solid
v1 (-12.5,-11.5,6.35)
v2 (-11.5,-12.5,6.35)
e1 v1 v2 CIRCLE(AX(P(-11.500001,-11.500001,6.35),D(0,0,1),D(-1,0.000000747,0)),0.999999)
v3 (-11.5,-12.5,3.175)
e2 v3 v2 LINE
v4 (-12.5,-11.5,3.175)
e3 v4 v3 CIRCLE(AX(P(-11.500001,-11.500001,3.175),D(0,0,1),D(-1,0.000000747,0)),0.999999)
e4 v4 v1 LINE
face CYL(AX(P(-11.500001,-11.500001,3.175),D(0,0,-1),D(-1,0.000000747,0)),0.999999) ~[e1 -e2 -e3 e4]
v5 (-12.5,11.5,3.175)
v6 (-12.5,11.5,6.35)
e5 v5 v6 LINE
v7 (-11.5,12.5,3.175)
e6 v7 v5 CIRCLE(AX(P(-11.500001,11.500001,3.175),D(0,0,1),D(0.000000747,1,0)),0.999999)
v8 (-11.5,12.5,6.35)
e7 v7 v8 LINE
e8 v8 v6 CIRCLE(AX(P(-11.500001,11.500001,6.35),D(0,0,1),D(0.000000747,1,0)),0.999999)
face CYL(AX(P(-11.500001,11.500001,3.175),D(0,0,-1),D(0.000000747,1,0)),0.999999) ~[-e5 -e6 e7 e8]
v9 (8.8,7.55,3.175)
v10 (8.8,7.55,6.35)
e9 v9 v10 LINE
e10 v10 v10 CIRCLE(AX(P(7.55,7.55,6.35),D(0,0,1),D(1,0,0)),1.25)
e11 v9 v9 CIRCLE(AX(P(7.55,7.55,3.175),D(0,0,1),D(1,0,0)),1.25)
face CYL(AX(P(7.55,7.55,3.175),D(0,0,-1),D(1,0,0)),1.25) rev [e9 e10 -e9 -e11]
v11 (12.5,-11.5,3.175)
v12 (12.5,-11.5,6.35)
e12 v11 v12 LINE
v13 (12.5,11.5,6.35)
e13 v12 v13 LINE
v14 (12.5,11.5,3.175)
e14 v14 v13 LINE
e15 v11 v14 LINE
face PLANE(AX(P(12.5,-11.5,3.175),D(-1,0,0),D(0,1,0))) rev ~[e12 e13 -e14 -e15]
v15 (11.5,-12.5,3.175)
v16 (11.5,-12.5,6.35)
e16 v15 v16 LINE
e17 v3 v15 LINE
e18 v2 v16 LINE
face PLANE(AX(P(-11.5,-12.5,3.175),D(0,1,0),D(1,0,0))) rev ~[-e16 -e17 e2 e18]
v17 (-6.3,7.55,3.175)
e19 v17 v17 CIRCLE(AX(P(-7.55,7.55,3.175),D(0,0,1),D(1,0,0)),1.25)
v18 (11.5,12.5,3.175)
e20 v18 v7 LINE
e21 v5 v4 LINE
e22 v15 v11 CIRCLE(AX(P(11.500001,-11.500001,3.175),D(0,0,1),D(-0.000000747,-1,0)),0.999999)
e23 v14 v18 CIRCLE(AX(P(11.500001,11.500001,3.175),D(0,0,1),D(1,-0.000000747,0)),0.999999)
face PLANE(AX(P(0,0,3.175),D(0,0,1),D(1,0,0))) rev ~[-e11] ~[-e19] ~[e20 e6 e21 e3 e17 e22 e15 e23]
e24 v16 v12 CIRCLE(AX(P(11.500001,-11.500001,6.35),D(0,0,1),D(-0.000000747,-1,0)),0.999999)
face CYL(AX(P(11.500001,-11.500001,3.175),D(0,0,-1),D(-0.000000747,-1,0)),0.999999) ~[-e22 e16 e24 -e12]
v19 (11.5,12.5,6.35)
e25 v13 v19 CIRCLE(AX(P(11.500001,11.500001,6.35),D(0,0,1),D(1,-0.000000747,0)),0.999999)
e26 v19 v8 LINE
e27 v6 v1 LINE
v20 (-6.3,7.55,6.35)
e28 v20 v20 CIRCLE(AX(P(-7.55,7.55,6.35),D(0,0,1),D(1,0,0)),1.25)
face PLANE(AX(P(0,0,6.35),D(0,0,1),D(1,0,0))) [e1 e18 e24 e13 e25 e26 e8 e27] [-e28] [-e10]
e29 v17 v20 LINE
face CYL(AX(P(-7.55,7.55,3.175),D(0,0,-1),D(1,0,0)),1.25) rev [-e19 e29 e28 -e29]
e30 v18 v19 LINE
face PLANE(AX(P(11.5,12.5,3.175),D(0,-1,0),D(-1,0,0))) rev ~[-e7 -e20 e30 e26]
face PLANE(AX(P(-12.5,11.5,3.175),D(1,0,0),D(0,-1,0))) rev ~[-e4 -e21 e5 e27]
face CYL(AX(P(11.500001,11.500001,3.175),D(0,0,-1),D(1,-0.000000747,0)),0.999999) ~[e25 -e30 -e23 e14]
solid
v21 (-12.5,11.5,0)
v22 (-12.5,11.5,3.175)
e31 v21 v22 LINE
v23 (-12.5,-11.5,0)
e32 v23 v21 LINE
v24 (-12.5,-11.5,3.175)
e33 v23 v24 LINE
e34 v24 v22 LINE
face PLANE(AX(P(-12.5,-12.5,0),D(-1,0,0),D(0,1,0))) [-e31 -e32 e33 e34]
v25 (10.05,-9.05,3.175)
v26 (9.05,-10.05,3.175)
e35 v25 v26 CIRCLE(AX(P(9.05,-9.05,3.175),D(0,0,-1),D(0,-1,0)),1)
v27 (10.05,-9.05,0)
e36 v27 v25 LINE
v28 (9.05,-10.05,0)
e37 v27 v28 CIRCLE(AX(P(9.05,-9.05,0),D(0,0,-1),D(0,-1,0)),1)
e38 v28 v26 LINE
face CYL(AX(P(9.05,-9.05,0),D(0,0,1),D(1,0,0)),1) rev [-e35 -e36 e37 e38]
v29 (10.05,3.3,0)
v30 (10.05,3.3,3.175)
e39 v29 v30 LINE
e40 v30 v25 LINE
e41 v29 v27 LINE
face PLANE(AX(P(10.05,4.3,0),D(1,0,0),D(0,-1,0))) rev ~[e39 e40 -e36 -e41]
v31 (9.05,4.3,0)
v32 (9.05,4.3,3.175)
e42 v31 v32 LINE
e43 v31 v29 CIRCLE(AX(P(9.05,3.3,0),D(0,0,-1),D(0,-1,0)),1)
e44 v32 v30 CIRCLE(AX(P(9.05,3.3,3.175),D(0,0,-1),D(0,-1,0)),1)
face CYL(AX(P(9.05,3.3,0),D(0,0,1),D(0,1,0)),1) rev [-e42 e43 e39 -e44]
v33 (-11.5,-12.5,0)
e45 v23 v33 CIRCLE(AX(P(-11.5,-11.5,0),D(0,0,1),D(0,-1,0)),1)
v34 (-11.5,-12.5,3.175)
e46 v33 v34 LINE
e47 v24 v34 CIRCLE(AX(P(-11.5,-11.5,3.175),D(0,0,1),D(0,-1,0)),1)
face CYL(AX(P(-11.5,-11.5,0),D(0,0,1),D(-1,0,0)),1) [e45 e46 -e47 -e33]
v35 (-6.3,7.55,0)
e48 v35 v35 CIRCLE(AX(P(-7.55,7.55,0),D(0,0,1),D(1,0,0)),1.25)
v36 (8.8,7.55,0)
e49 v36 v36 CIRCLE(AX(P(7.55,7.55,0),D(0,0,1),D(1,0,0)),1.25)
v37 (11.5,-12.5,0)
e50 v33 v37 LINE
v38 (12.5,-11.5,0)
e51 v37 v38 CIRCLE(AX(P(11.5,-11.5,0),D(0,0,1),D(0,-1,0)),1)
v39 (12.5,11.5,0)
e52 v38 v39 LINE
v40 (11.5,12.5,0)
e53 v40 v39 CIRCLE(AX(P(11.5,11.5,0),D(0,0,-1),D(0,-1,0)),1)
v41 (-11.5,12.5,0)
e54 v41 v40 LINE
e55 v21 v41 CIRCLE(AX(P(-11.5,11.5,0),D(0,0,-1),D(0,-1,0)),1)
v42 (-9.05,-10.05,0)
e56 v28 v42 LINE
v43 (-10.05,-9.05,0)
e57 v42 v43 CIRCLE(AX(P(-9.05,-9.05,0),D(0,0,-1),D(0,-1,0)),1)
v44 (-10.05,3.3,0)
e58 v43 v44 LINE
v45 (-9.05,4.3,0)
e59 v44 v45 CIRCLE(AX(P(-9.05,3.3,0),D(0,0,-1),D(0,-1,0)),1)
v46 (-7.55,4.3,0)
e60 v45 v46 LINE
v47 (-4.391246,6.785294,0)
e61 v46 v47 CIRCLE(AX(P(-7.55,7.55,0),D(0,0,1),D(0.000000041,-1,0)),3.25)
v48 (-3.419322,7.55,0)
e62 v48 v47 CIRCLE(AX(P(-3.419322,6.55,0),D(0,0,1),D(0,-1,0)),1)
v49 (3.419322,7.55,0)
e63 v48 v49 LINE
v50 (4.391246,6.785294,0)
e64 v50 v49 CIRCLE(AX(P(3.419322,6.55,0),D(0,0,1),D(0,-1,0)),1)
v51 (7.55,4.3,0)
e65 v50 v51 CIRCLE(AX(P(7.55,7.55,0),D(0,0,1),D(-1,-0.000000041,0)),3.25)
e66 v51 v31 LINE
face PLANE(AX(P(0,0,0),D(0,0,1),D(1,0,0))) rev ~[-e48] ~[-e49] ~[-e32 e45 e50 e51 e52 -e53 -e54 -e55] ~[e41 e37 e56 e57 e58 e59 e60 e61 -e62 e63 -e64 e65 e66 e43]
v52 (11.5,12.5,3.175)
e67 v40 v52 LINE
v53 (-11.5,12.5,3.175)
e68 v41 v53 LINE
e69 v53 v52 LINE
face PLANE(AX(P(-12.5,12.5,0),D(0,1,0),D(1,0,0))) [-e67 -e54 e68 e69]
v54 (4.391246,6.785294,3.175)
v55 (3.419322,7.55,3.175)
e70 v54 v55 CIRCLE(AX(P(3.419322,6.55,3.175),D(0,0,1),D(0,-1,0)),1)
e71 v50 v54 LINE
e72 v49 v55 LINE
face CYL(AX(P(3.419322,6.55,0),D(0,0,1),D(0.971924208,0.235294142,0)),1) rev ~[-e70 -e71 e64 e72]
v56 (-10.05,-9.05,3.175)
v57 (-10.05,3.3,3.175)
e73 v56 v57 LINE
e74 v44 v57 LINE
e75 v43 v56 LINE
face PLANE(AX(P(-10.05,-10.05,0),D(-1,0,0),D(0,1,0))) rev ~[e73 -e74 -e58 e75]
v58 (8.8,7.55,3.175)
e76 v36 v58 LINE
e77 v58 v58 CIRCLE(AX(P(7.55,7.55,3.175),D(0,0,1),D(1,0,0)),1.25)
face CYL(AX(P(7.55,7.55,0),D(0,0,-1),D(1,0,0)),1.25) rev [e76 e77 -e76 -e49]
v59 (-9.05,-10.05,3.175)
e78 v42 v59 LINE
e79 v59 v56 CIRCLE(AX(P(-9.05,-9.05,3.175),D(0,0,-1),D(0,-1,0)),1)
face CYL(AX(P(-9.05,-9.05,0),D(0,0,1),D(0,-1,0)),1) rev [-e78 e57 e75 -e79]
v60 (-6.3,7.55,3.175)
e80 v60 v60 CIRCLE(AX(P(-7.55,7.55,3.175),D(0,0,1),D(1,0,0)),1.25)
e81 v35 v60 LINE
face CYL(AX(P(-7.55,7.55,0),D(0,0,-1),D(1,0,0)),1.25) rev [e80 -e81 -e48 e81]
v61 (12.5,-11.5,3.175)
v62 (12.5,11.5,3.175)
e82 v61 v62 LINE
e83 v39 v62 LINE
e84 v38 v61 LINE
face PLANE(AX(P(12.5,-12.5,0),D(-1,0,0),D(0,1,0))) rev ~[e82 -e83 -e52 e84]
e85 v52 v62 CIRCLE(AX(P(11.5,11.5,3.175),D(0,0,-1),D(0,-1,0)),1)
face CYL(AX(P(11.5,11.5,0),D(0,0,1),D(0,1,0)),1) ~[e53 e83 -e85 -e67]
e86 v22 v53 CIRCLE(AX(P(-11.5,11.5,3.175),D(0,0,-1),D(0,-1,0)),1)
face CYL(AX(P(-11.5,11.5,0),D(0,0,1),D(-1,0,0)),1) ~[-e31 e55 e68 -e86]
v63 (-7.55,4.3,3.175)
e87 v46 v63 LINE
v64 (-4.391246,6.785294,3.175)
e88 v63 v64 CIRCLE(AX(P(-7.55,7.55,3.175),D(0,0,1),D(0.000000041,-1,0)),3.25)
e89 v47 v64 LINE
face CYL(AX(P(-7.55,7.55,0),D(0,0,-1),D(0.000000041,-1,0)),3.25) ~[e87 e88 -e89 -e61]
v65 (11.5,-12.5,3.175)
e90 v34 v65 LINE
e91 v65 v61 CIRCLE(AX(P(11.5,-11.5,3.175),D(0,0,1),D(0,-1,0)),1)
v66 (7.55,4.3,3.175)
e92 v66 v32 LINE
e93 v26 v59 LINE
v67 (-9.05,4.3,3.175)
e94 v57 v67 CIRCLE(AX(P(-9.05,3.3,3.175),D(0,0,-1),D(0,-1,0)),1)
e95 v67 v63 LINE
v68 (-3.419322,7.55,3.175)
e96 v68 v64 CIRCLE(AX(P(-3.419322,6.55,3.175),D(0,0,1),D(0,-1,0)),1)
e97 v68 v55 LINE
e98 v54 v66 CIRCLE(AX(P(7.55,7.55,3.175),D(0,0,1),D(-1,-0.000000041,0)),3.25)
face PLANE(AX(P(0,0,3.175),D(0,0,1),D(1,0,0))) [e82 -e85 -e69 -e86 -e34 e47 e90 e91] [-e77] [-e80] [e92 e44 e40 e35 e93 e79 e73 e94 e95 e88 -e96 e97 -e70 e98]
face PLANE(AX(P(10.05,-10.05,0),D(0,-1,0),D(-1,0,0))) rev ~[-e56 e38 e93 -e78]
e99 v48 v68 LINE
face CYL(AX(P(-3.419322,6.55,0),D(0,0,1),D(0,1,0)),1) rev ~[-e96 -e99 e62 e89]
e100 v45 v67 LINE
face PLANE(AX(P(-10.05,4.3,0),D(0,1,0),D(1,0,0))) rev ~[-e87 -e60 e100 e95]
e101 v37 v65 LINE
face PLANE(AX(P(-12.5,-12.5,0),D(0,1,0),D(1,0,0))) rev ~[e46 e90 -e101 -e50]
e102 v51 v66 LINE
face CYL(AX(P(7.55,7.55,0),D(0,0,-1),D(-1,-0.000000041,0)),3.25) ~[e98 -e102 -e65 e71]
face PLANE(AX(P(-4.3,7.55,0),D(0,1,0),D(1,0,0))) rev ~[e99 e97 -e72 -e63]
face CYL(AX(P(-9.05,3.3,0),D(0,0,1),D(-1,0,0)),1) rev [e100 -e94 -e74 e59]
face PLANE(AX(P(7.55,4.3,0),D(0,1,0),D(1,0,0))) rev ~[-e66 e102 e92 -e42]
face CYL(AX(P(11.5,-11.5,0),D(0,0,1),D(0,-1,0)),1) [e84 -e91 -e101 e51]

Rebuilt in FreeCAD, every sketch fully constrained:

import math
import FreeCAD as App
import Part
import Sketcher

V = App.Vector
Q = App.Units.Quantity


def edges_at(feature, points):
    """Names of the edges that pass closest to the given points."""
    edges = feature.Shape.Edges
    near = lambda p: min(range(len(edges)), key=lambda i: edges[i].distToShape(Part.Vertex(*p))[0])
    return sorted({f"Edge{near(p) + 1}" for p in points})


def add_polygon(sketch, points):
    """Adds a closed chain of lines whose ends are joined by coincident constraints."""
    first, n = sketch.GeometryCount, len(points)
    for a, b in zip(points, points[1:] + points[:1]):
        sketch.addGeometry(Part.LineSegment(App.Vector(*a, 0), App.Vector(*b, 0)), False)
    for i in range(n):
        sketch.addConstraint(Sketcher.Constraint("Coincident", first + i, 2, first + (i + 1) % n, 1))

doc = App.newDocument("Part")
body = doc.addObject("PartDesign::Body", "Body")

# Sketch on XY plane
sketch1 = body.newObject("Sketcher::SketchObject", "Sketch")
sketch1.AttachmentSupport = (doc.getObject("XY_Plane"), [""])
sketch1.MapMode = "FlatFace"
add_polygon(sketch1, [(-12.5, 12.5), (-12.5, -12.5), (12.5, -12.5), (12.5, 12.5)])  # lines 0-3
sketch1.addGeometry(Part.LineSegment(V(7.5, 4.3, 0), V(10.1, 4.3, 0)), False)  # 4
sketch1.addGeometry(Part.LineSegment(V(10.1, 4.3, 0), V(10.1, -10.1, 0)), False)  # 5
sketch1.addGeometry(Part.LineSegment(V(10.1, -10.1, 0), V(-10.1, -10.1, 0)), False)  # 6
sketch1.addGeometry(Part.LineSegment(V(-10.1, -10.1, 0), V(-10.1, 4.3, 0)), False)  # 7
sketch1.addGeometry(Part.LineSegment(V(-10.1, 4.3, 0), V(-7.5, 4.3, 0)), False)  # 8
sketch1.addGeometry(Part.ArcOfCircle(Part.Circle(V(-7.6, 7.6, 0), V(0, 0, 1), 3.3), math.radians(-90), math.radians(0)), False)  # 9
sketch1.addGeometry(Part.LineSegment(V(-4.3, 7.5, 0), V(4.3, 7.5, 0)), False)  # 10
sketch1.addGeometry(Part.ArcOfCircle(Part.Circle(V(7.6, 7.6, 0), V(0, 0, 1), 3.3), math.radians(-180), math.radians(-90)), False)  # 11
sketch1.addGeometry(Part.Circle(V(-7.5, 7.5, 0), V(0, 0, 1), 1.2), False)  # 12
sketch1.addGeometry(Part.Circle(V(7.5, 7.5, 0), V(0, 0, 1), 1.2), False)  # 13
sketch1.addConstraint([
    Sketcher.Constraint("Coincident", 4, 2, 5, 1),
    Sketcher.Constraint("Coincident", 5, 2, 6, 1),
    Sketcher.Constraint("Coincident", 6, 2, 7, 1),
    Sketcher.Constraint("Coincident", 7, 2, 8, 1),
    Sketcher.Constraint("Tangent", 8, 2, 9, 1),
    Sketcher.Constraint("Coincident", 9, 2, 10, 1),
    Sketcher.Constraint("Coincident", 10, 2, 11, 1),
    Sketcher.Constraint("Tangent", 11, 2, 4, 1),
    Sketcher.Constraint("Vertical", 0),
    Sketcher.Constraint("Horizontal", 1),
    Sketcher.Constraint("Vertical", 2),
    Sketcher.Constraint("Horizontal", 3),
    Sketcher.Constraint("Horizontal", 4),
    Sketcher.Constraint("Vertical", 5),
    Sketcher.Constraint("Horizontal", 6),
    Sketcher.Constraint("Vertical", 7),
    Sketcher.Constraint("Horizontal", 8),
    Sketcher.Constraint("Horizontal", 10),
    Sketcher.Constraint("Coincident", 12, 3, 9, 3),
    Sketcher.Constraint("Coincident", 13, 3, 11, 3),
    Sketcher.Constraint("Equal", 9, 11),
    Sketcher.Constraint("Equal", 12, 13),
    Sketcher.Constraint("Symmetric", 0, 2, 2, 2, -1, 1),
    Sketcher.Constraint("Symmetric", 9, 3, 11, 3, -2),
    Sketcher.Constraint("Horizontal", 13, 3, 9, 2),
    Sketcher.Constraint("Equal", 4, 8),
    Sketcher.Constraint("Equal", 3, 0),
    Sketcher.Constraint("Diameter", 12, Q("2.5 mm")),
    Sketcher.Constraint("DistanceX", 1, 1, 1, 2, Q("25 mm")),
    Sketcher.Constraint("Radius", 9, Q("3.25 mm")),
    Sketcher.Constraint("DistanceX", 4, 1, 4, 2, Q("2.5 mm")),
    Sketcher.Constraint("DistanceX", 6, 2, 6, 1, Q("20.1 mm")),
    Sketcher.Constraint("DistanceY", 5, 2, 5, 1, Q("14.35 mm")),
    Sketcher.Constraint("DistanceY", -1, 1, 4, 2, Q("4.3 mm")),
])
pad1 = body.newObject("PartDesign::Pad", "Pad")
pad1.Profile = sketch1
pad1.Length = 3.175
doc.recompute()

fillet = body.newObject("PartDesign::Fillet", "Fillet")
fillet.Base = (pad1, edges_at(pad1, [
    (-12.5, 12.5, 1.587),
    (12.5, 12.5, 1.587),
    (12.5, -12.5, 1.587),
    (-12.5, -12.5, 1.587),
    (-10.05, -10.05, 1.587),
    (10.05, -10.05, 1.587),
    (-10.05, 4.3, 1.587),
    (-4.3, 7.55, 1.587),
    (4.3, 7.55, 1.587),
    (10.05, 4.3, 1.587),
]))
fillet.Radius = 1
body2 = doc.addObject("PartDesign::Body", "Body001")

# Sketch on XY plane
sketch2 = body2.newObject("Sketcher::SketchObject", "Sketch001")
sketch2.AttachmentSupport = (doc.getObject("XY_Plane001"), [""])
sketch2.MapMode = "FlatFace"
sketch2.AttachmentOffset = App.Placement(V(0, 0, 3.175), App.Rotation())
sketch2.addGeometry([
    Part.ArcOfCircle(Part.Circle(V(11.5, 11.5, 0), V(0, 0, 1), 1), math.radians(0), math.radians(90)),  # 0
    Part.LineSegment(V(11.5, 12.5, 0), V(-11.5, 12.5, 0)),  # 1
    Part.ArcOfCircle(Part.Circle(V(-11.5, 11.5, 0), V(0, 0, 1), 1), math.radians(90), math.radians(180)),  # 2
    Part.LineSegment(V(-12.5, 11.5, 0), V(-12.5, -11.5, 0)),  # 3
    Part.ArcOfCircle(Part.Circle(V(-11.5, -11.5, 0), V(0, 0, 1), 1), math.radians(180), math.radians(270)),  # 4
    Part.LineSegment(V(-11.5, -12.5, 0), V(11.5, -12.5, 0)),  # 5
    Part.ArcOfCircle(Part.Circle(V(11.5, -11.5, 0), V(0, 0, 1), 1), math.radians(-90), math.radians(0)),  # 6
    Part.LineSegment(V(12.5, -11.5, 0), V(12.5, 11.5, 0)),  # 7
    Part.Circle(V(7.5, 7.5, 0), V(0, 0, 1), 1.2),  # 8
    Part.Circle(V(-7.5, 7.5, 0), V(0, 0, 1), 1.2),  # 9
], False)
sketch2.addConstraint([
    Sketcher.Constraint("Tangent", 0, 2, 1, 1),
    Sketcher.Constraint("Tangent", 1, 2, 2, 1),
    Sketcher.Constraint("Tangent", 2, 2, 3, 1),
    Sketcher.Constraint("Tangent", 3, 2, 4, 1),
    Sketcher.Constraint("Tangent", 4, 2, 5, 1),
    Sketcher.Constraint("Tangent", 5, 2, 6, 1),
    Sketcher.Constraint("Tangent", 6, 2, 7, 1),
    Sketcher.Constraint("Tangent", 7, 2, 0, 1),
    Sketcher.Constraint("Horizontal", 1),
    Sketcher.Constraint("Vertical", 3),
    Sketcher.Constraint("Horizontal", 5),
    Sketcher.Constraint("Vertical", 7),
    Sketcher.Constraint("Equal", 0, 2),
    Sketcher.Constraint("Equal", 2, 4),
    Sketcher.Constraint("Equal", 4, 6),
    Sketcher.Constraint("Equal", 8, 9),
    Sketcher.Constraint("Symmetric", 0, 3, 4, 3, -1, 1),
    Sketcher.Constraint("Symmetric", 8, 3, 9, 3, -2),
    Sketcher.Constraint("Equal", 5, 3),
    Sketcher.Constraint("Radius", 0, Q("0.999999 mm")),
    Sketcher.Constraint("Diameter", 8, Q("2.5 mm")),
    Sketcher.Constraint("DistanceX", 1, 2, 1, 1, Q("23 mm")),
    Sketcher.Constraint("DistanceX", 9, 3, 8, 3, Q("15.1 mm")),
    Sketcher.Constraint("DistanceY", -1, 1, 8, 3, Q("7.55 mm")),
])
pad2 = body2.newObject("PartDesign::Pad", "Pad001")
pad2.Profile = sketch2
pad2.Length = 3.175

doc.recompute()
